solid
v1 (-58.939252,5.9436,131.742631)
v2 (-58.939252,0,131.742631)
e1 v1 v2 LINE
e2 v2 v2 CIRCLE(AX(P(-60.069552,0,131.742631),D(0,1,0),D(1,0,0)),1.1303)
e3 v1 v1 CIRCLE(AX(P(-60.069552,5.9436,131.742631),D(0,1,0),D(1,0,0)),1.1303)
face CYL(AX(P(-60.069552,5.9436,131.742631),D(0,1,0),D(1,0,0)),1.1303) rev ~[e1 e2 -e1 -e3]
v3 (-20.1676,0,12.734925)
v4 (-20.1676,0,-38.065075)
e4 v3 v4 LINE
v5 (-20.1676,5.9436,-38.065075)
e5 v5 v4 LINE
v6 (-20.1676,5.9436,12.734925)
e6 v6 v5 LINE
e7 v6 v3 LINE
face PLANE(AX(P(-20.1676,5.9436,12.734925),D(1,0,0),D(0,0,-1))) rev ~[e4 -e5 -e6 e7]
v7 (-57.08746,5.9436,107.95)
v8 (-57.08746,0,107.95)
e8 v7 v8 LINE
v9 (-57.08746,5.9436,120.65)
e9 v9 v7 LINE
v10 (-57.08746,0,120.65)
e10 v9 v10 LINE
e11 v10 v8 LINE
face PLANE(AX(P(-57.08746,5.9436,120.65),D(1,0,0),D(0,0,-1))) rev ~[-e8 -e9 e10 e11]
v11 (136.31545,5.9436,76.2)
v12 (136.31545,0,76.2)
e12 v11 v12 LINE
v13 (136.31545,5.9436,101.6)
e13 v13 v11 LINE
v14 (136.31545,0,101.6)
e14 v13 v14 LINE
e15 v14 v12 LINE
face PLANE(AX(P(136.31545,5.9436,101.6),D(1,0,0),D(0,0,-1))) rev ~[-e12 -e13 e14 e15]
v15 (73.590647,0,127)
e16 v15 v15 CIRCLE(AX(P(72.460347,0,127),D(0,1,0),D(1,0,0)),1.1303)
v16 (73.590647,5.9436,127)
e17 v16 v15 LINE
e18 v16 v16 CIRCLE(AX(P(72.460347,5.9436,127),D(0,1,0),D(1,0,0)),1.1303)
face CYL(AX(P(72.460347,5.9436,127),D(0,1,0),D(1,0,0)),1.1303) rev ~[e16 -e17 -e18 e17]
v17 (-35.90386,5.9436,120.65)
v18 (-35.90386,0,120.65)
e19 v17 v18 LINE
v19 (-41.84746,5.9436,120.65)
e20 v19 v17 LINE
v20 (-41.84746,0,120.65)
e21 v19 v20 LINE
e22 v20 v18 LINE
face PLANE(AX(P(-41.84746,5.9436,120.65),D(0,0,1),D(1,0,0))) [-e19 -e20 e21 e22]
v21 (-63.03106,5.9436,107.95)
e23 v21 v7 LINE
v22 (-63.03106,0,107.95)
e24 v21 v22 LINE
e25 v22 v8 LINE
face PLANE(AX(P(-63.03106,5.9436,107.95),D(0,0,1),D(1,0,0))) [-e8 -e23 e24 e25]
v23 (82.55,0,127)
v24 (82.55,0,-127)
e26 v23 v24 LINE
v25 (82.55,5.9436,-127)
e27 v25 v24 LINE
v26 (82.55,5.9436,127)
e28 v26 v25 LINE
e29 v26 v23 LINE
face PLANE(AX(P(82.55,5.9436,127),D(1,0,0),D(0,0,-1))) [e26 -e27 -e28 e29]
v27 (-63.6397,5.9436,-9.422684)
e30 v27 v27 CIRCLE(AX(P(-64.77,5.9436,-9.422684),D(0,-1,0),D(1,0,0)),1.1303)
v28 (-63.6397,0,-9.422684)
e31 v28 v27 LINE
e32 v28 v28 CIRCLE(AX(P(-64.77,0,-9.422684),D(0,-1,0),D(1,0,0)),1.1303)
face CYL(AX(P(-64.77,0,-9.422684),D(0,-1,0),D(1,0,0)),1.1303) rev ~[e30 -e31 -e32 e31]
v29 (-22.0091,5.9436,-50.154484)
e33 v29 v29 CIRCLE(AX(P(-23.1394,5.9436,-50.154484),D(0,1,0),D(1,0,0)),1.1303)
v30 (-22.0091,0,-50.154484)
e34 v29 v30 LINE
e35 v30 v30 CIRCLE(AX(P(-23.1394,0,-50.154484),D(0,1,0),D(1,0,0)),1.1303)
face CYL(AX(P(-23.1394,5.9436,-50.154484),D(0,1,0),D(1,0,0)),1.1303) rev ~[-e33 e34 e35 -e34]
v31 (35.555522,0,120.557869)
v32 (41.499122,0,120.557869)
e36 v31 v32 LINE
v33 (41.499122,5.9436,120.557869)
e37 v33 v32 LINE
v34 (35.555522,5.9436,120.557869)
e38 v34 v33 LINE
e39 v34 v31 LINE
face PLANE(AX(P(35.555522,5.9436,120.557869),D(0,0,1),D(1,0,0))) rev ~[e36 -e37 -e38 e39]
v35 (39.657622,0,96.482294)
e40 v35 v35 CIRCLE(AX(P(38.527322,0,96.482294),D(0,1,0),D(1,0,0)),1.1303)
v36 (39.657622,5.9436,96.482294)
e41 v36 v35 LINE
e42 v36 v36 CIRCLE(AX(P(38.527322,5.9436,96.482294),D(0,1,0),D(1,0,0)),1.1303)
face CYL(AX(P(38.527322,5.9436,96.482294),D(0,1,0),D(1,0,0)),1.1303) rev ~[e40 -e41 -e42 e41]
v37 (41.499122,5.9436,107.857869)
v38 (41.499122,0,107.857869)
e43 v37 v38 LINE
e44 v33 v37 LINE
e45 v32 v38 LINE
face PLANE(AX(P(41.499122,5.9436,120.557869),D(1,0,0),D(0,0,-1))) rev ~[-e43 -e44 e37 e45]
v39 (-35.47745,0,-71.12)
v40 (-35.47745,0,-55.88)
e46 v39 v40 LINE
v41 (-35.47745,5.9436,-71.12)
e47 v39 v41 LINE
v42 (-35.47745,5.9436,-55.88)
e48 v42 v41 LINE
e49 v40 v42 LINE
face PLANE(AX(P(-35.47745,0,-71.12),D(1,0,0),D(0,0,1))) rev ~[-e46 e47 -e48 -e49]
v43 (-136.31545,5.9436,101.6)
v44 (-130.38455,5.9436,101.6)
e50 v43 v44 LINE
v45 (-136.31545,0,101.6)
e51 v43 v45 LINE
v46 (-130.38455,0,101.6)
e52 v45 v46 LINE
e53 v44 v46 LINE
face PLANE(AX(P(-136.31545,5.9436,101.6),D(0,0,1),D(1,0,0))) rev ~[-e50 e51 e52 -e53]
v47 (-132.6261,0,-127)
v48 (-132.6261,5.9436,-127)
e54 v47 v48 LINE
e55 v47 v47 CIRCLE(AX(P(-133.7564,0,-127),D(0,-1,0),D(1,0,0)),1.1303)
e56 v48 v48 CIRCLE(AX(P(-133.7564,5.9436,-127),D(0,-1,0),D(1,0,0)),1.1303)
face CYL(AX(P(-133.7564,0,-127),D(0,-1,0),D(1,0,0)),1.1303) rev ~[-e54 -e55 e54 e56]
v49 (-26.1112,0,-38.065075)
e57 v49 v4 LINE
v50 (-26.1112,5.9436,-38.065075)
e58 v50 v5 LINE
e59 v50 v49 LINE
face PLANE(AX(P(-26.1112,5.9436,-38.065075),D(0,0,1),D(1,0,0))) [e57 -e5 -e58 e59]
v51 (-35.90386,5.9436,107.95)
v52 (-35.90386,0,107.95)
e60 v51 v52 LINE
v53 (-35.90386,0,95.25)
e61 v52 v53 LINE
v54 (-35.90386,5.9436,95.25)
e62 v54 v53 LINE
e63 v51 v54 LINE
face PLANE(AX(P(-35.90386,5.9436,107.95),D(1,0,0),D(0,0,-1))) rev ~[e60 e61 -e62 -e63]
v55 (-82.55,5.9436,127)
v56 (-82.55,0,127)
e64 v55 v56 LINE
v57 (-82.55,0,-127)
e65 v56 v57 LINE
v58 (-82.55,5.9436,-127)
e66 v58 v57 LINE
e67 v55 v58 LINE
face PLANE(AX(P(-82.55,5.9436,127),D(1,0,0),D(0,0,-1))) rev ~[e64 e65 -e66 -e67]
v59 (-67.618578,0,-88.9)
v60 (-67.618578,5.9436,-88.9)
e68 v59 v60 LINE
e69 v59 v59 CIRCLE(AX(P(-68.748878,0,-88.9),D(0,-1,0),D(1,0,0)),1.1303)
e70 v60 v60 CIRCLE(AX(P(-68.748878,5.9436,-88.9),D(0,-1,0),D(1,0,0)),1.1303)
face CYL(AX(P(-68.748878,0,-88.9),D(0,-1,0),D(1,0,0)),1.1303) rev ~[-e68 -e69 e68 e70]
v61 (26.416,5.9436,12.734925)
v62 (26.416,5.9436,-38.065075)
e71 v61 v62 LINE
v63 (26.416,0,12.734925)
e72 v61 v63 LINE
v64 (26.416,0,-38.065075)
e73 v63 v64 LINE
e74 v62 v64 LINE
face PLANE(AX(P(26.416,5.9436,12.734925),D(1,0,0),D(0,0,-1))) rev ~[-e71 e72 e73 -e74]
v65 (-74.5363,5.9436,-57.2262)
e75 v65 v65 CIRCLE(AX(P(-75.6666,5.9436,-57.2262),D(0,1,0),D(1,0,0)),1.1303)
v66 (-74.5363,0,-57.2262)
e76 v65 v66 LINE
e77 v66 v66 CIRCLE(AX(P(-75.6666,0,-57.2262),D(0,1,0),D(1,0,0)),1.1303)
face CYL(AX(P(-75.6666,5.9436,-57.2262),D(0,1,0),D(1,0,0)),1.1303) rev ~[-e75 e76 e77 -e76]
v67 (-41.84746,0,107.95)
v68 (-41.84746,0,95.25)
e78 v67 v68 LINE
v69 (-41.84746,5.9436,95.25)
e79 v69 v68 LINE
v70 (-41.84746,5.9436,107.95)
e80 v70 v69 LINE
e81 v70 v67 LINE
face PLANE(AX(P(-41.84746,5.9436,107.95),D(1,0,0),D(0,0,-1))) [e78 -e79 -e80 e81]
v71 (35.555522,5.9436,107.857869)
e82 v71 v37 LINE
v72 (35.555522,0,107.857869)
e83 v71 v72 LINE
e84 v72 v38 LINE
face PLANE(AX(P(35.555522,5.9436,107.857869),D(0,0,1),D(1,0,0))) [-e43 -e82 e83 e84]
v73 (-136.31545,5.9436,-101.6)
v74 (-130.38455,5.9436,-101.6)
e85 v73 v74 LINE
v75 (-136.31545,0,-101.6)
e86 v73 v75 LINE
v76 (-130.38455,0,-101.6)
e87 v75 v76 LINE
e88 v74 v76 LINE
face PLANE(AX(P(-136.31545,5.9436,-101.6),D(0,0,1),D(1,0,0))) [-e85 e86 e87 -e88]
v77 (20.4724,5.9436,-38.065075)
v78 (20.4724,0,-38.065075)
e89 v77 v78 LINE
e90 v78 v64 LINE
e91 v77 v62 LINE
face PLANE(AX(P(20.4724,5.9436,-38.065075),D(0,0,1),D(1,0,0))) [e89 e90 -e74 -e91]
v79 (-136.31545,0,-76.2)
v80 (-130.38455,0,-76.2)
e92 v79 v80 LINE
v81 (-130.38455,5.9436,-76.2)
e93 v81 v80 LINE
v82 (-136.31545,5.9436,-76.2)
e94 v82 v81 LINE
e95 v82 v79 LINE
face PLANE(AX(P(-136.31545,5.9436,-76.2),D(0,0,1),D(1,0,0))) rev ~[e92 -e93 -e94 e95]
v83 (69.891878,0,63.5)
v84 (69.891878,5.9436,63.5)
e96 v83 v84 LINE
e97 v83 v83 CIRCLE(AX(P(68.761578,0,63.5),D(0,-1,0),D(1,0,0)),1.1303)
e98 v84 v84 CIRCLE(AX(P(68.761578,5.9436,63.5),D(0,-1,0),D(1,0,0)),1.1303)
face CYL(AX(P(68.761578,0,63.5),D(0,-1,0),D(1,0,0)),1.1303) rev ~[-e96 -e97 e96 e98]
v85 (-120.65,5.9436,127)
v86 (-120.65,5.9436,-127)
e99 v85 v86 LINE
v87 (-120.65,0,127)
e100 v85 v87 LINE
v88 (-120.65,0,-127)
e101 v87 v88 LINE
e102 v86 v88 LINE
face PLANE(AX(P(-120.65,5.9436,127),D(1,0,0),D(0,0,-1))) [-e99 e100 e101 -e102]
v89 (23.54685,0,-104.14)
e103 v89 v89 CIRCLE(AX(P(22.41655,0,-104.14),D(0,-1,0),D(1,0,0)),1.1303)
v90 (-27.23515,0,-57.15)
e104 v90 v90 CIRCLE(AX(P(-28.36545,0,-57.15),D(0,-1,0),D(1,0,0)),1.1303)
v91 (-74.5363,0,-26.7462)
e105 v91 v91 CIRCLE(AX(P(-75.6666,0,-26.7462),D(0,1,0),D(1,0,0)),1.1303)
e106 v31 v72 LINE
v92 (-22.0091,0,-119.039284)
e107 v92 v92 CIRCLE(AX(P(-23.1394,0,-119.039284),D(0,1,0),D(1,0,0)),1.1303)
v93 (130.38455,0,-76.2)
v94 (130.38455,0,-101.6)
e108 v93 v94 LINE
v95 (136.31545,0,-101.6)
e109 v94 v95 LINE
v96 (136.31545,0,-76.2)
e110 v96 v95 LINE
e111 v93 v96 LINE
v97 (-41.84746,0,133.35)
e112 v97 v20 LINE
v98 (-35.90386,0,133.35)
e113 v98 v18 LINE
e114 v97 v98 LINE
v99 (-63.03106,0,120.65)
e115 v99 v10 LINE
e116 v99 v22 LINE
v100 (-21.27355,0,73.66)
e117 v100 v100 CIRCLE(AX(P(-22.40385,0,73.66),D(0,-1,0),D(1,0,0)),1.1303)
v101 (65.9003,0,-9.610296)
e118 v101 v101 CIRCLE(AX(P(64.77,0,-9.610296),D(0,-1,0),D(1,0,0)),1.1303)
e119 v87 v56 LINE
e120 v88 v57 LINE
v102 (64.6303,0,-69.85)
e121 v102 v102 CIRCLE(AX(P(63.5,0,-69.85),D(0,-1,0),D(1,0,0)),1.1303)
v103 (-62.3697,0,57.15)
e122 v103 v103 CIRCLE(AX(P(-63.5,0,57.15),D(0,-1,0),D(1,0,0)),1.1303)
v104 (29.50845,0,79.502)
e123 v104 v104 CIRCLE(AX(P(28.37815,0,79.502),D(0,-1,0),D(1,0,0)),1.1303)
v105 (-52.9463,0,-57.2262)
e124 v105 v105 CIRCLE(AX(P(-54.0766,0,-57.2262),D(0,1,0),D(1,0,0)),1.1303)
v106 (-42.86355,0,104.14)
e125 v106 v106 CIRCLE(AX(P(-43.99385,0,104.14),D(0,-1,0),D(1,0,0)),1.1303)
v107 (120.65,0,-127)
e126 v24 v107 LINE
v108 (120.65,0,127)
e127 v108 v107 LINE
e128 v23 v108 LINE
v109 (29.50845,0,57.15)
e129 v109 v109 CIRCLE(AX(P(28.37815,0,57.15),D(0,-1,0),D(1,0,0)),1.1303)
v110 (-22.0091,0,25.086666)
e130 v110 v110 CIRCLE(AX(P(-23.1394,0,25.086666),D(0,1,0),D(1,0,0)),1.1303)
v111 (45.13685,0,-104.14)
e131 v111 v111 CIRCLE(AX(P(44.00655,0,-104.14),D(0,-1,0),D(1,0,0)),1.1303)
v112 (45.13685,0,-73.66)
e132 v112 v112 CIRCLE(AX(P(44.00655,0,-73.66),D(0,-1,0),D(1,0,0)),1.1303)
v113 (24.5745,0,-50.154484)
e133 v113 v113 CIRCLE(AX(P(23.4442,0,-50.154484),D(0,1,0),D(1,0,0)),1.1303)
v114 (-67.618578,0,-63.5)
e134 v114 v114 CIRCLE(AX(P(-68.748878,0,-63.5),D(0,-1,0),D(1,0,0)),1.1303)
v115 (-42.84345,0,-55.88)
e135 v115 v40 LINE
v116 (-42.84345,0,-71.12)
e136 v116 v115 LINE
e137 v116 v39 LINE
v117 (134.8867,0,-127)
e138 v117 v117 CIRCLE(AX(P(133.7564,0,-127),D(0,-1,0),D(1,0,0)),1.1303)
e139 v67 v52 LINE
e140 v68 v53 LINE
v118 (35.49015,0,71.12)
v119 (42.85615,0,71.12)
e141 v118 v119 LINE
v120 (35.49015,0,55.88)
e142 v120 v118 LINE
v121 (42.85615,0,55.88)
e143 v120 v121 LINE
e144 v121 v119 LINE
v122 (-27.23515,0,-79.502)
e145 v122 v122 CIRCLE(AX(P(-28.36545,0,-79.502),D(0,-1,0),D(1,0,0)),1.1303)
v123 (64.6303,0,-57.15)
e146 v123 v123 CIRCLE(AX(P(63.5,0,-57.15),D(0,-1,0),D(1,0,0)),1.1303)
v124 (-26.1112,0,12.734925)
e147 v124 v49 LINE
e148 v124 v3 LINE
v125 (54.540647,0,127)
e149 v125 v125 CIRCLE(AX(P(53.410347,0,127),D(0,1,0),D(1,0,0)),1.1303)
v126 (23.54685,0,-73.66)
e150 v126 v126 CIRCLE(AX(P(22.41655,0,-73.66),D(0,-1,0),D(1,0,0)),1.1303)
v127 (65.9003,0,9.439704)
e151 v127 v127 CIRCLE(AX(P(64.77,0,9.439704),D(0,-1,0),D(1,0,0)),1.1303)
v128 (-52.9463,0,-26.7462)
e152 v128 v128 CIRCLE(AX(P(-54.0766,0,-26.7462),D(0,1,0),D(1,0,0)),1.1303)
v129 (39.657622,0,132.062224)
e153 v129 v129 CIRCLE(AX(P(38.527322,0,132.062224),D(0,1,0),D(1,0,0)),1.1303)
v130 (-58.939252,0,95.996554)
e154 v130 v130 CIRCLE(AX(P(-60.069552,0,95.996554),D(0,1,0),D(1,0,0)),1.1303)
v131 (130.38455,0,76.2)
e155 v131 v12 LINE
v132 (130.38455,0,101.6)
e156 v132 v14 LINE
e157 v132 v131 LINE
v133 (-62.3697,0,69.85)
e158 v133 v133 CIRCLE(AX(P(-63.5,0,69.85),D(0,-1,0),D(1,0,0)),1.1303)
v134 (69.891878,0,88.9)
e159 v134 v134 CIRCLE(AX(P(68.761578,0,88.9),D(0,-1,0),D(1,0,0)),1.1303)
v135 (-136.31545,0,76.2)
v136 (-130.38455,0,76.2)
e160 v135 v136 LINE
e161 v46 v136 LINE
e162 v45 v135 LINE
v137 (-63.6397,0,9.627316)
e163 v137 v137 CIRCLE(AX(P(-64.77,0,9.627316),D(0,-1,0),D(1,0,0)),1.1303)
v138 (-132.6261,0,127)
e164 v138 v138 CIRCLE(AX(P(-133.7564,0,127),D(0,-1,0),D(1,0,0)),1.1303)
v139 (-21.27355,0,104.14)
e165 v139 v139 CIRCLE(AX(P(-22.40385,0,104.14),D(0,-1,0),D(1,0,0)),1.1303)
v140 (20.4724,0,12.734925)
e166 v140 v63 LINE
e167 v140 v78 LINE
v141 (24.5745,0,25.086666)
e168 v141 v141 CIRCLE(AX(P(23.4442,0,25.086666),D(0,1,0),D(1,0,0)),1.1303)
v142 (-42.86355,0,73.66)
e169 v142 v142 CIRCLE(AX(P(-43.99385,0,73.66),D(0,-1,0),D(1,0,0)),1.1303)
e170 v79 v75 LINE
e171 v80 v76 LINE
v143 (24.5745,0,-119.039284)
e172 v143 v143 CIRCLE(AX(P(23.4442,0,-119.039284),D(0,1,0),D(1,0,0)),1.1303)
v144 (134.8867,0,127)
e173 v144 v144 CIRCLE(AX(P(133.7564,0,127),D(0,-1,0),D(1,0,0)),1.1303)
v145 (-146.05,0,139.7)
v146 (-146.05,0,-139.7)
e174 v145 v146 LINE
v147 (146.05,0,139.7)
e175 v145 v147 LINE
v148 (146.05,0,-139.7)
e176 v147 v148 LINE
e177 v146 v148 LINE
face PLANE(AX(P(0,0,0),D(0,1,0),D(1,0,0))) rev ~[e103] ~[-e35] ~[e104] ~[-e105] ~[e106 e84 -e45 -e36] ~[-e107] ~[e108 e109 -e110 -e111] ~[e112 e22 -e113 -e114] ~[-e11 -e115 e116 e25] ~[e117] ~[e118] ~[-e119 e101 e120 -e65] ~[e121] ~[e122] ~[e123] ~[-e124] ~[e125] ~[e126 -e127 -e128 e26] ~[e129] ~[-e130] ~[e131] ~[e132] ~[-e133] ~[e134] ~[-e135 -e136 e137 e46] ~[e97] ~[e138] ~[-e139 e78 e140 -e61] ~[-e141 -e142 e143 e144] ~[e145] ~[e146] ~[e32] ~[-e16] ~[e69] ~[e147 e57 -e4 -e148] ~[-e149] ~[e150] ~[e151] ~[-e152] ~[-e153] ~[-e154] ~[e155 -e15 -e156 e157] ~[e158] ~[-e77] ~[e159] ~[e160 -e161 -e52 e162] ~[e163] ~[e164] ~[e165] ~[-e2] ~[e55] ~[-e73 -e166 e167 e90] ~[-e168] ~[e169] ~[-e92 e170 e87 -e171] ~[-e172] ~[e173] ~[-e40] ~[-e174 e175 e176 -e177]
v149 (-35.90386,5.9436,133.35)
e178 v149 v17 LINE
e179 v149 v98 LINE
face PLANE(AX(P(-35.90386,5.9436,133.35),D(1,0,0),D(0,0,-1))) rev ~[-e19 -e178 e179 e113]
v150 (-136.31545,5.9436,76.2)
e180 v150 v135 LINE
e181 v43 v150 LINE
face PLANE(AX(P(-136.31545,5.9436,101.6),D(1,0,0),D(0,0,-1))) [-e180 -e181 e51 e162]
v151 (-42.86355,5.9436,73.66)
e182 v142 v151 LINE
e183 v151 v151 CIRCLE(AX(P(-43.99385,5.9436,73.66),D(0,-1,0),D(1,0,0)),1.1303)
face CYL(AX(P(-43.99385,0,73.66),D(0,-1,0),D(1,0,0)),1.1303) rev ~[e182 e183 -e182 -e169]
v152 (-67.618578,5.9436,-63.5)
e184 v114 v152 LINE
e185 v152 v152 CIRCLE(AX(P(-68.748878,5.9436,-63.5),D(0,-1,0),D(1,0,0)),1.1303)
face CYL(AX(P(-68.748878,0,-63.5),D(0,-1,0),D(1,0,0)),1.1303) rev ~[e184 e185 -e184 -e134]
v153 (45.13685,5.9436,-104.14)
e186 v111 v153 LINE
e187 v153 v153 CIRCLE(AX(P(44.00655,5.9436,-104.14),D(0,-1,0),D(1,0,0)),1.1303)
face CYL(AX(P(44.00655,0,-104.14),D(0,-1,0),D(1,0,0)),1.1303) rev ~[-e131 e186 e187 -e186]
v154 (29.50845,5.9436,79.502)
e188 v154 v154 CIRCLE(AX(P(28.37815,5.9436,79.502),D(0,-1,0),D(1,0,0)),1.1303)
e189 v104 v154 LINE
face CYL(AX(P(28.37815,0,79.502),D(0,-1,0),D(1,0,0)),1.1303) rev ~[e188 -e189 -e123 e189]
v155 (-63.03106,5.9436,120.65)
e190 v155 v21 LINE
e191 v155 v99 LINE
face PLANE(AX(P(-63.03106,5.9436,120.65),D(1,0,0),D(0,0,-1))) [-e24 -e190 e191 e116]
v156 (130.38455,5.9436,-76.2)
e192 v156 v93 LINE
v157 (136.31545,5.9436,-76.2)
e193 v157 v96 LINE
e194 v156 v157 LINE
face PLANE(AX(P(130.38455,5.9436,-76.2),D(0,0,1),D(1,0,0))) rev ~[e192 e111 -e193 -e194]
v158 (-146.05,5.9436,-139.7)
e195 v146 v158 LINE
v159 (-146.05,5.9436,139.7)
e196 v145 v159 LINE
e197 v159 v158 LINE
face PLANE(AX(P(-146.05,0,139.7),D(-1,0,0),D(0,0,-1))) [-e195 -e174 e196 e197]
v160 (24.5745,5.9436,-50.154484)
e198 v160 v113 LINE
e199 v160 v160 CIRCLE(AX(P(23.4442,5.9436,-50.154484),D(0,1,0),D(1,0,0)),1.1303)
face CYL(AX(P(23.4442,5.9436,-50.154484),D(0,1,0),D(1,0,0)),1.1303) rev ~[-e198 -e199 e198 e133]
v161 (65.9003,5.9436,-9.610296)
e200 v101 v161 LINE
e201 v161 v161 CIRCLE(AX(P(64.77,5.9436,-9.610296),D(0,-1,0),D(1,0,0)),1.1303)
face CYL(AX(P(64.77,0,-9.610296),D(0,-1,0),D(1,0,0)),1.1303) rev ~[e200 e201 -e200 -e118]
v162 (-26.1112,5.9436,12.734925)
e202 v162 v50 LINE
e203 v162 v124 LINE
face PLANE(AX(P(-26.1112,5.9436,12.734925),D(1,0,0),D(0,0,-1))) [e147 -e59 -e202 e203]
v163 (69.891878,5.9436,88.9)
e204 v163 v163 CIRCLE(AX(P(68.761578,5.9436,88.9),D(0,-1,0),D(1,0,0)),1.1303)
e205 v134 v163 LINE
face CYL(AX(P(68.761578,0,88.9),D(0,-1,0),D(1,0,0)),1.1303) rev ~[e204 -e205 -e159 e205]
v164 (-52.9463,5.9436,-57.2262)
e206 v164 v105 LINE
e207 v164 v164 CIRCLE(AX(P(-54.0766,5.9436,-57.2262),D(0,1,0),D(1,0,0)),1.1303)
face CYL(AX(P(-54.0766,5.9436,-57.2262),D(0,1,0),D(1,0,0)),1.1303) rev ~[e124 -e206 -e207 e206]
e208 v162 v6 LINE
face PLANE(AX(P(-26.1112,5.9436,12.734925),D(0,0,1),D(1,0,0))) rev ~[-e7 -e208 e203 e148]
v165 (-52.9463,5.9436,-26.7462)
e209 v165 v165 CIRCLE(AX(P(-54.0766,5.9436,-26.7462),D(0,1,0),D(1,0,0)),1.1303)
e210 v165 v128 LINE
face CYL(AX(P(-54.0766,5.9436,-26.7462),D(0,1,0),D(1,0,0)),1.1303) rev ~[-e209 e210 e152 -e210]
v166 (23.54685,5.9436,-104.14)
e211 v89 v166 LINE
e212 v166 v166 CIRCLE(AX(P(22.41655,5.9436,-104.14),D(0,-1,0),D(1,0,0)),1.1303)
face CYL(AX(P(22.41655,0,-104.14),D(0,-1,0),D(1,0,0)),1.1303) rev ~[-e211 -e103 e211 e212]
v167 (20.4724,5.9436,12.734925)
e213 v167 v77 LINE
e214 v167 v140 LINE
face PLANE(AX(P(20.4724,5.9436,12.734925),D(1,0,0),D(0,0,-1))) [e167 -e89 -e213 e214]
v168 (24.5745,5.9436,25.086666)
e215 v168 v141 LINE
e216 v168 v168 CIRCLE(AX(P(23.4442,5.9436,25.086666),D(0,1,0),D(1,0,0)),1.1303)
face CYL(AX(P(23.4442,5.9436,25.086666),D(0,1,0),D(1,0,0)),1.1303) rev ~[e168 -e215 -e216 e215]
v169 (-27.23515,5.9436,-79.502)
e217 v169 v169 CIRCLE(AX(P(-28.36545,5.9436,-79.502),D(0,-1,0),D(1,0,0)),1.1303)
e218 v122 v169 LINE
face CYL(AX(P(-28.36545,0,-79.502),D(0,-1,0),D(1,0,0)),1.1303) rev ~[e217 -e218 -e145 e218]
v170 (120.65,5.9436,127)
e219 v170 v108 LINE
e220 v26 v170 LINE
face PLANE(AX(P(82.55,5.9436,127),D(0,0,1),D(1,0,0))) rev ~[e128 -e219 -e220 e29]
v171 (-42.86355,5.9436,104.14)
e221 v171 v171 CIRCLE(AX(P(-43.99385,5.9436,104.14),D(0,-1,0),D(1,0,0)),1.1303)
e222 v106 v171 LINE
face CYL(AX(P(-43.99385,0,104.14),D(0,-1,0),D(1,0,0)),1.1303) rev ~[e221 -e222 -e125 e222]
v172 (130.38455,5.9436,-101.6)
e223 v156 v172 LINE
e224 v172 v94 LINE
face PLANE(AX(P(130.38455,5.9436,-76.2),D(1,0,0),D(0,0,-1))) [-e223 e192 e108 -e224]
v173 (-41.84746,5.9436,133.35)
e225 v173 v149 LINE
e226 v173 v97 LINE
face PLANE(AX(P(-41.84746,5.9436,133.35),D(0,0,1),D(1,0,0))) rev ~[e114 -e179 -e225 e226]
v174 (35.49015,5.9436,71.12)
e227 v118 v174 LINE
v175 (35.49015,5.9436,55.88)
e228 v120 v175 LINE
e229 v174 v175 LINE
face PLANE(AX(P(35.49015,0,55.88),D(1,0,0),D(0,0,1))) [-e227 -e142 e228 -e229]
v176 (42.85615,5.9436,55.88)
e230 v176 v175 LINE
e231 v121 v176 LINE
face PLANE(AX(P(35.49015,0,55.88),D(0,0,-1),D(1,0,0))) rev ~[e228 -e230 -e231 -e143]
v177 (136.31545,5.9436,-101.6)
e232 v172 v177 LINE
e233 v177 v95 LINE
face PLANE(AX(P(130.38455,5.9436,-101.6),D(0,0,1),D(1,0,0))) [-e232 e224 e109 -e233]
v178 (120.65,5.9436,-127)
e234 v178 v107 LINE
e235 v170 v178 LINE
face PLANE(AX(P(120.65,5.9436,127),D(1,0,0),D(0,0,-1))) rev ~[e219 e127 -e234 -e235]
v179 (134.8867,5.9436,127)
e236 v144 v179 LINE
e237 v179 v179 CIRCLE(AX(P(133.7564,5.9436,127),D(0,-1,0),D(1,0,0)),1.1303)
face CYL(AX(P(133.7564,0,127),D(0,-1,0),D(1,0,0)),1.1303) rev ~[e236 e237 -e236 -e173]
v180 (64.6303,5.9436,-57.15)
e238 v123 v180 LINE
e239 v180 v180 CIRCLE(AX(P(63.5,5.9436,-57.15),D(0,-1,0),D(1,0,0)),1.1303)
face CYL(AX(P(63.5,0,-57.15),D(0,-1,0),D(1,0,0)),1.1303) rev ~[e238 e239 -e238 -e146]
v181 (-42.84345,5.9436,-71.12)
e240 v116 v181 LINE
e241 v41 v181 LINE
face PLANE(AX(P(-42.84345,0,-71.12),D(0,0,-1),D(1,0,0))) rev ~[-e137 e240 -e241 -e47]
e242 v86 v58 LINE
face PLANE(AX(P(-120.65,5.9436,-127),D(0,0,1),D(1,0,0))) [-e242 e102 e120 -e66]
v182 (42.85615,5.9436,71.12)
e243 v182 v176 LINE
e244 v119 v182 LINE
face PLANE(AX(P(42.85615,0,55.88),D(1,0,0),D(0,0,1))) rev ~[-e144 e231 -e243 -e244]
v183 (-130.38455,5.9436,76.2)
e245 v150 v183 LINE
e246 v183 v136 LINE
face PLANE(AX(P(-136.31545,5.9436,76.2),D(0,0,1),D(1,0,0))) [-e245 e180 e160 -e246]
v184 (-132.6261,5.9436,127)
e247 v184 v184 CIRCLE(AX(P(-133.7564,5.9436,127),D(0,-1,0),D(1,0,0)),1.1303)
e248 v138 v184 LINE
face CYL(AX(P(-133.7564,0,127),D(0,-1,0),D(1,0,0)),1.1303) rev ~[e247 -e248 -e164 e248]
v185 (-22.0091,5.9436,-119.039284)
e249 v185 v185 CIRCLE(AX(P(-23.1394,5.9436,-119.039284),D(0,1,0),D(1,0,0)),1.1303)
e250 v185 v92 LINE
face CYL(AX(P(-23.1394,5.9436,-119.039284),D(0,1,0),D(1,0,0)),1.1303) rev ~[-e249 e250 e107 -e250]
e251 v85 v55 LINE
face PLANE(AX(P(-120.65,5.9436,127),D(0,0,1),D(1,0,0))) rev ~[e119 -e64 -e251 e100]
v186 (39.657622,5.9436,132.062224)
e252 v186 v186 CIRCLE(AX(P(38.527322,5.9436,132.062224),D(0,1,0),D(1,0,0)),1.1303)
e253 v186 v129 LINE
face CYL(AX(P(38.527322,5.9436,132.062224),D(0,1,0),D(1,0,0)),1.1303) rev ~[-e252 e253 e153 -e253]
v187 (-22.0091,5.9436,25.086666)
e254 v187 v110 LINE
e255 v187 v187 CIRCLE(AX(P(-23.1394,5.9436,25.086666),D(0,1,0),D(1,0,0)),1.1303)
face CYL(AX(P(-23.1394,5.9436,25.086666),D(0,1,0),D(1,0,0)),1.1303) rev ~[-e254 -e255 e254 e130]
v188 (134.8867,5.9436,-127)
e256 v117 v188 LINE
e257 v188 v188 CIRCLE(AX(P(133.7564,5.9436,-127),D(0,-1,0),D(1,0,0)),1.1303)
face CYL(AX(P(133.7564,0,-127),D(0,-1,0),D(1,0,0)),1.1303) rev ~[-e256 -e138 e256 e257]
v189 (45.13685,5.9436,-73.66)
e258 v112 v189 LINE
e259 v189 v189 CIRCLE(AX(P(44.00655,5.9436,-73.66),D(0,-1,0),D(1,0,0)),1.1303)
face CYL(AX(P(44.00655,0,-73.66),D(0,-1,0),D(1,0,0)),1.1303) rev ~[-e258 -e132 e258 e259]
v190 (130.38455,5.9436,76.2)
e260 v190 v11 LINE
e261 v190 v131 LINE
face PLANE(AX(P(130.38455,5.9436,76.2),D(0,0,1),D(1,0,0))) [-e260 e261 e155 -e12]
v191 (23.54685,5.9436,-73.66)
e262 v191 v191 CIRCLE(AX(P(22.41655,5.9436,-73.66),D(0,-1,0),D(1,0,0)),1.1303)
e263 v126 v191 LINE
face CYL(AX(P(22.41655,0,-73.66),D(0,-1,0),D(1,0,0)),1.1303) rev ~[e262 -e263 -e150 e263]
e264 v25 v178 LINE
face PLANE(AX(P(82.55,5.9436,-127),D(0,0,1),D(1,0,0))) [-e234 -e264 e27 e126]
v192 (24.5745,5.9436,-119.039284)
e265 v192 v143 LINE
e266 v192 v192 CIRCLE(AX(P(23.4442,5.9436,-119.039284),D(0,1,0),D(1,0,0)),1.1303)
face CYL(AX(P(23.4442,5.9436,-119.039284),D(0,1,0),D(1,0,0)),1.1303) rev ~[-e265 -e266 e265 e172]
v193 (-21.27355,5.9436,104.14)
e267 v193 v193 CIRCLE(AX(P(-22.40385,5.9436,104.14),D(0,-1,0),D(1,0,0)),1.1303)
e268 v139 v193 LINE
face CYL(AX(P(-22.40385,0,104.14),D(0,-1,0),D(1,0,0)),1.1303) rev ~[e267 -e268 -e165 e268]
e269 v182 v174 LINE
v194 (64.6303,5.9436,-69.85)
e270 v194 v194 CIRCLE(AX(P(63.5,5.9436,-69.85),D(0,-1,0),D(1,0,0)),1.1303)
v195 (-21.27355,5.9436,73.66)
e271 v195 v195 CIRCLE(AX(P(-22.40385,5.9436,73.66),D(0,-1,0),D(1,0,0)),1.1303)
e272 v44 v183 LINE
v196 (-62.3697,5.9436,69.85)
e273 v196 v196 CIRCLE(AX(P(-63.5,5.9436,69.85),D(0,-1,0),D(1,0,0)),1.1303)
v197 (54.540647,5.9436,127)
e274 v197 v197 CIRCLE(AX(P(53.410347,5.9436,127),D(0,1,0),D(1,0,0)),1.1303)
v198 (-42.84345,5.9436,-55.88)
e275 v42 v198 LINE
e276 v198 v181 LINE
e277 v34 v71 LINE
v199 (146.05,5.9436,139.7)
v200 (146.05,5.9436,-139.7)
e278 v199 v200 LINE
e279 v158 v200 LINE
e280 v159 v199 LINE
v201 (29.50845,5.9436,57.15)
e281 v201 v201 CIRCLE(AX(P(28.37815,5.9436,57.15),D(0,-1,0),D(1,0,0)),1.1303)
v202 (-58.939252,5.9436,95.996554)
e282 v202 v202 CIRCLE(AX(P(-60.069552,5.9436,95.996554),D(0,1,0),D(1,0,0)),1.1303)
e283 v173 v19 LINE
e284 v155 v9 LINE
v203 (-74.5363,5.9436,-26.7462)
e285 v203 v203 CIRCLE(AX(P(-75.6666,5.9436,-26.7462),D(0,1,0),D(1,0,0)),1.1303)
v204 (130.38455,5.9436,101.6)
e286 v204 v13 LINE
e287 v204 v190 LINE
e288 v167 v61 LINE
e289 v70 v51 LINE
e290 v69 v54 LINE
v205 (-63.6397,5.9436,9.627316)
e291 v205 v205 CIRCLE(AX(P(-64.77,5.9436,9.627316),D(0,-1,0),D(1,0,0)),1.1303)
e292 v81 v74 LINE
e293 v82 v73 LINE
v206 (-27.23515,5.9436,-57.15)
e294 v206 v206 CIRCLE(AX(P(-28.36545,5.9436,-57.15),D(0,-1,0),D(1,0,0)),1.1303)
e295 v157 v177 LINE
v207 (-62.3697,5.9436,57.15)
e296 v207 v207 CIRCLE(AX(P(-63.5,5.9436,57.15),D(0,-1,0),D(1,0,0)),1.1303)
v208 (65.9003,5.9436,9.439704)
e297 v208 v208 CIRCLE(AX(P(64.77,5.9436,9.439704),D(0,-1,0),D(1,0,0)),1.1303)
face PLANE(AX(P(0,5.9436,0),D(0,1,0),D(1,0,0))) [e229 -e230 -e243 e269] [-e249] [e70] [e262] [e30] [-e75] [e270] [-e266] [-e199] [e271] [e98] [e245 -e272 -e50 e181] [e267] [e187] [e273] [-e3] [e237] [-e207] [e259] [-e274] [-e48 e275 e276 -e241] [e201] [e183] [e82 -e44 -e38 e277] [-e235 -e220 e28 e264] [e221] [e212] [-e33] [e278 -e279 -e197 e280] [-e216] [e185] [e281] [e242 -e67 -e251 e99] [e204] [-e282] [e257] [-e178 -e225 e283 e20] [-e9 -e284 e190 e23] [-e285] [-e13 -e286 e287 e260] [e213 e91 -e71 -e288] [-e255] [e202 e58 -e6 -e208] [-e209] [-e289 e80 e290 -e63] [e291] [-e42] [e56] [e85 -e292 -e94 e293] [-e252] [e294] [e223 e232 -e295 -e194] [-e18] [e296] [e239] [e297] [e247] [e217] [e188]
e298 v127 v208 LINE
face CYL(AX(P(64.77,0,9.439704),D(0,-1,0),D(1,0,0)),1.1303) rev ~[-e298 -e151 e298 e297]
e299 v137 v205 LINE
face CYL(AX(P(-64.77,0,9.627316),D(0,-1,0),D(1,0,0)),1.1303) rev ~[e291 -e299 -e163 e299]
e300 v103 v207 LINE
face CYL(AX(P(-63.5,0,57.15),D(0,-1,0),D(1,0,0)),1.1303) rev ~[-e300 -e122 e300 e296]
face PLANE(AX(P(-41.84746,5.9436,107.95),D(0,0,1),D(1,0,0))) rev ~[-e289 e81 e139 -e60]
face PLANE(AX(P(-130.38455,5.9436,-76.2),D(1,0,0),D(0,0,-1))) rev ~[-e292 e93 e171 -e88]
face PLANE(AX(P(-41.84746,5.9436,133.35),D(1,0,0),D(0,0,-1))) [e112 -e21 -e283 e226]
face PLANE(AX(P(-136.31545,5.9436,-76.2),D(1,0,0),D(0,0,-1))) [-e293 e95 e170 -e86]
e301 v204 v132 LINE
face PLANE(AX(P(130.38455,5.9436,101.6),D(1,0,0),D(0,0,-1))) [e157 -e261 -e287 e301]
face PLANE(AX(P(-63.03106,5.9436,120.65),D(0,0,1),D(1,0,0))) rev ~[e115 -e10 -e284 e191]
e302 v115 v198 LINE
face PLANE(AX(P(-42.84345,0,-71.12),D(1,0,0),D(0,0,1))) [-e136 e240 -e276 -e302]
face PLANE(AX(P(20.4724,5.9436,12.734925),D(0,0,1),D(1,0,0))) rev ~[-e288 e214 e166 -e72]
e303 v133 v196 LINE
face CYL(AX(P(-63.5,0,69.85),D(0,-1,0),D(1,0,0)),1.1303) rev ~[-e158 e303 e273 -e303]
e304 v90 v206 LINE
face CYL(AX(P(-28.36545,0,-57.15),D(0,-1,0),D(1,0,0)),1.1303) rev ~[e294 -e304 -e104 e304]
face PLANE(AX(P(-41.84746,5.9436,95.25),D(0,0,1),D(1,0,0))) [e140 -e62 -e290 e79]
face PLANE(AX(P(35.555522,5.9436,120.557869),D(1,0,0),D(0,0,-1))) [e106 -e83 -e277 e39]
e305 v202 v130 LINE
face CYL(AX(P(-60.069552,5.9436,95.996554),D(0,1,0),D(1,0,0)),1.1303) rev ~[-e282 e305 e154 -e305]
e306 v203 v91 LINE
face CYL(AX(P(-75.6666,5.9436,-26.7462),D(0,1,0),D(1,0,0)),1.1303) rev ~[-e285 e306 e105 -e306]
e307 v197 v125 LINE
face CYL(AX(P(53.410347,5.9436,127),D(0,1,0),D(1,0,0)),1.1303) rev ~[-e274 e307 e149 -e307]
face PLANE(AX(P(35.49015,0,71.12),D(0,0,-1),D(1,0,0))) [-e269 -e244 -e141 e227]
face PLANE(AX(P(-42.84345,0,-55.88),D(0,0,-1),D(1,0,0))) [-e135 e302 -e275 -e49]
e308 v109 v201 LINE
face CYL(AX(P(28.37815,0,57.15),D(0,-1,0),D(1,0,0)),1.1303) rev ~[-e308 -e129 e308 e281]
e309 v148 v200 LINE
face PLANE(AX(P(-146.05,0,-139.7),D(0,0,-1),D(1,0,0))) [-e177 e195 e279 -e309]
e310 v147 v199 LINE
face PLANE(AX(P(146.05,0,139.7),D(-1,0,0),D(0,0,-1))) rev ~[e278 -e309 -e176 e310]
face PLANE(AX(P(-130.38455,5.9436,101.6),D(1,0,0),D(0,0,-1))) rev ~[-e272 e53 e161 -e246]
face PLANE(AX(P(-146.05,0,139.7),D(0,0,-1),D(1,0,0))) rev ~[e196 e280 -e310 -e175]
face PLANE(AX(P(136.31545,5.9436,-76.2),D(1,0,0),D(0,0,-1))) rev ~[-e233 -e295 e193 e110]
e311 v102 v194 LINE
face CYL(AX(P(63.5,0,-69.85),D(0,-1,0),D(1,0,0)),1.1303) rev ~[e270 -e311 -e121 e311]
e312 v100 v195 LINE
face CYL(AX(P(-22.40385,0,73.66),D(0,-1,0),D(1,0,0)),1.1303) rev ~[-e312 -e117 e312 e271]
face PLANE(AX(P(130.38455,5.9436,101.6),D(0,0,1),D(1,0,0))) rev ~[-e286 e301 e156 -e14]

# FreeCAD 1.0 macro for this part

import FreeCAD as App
import Part
import Sketcher
from FreeCAD import Vector
Q = App.Units.Quantity


def add_polygon(sketch, points):
    """Adds a closed chain of lines whose ends are joined by coincident constraints."""
    first, n = sketch.GeometryCount, len(points)
    for a, b in zip(points, points[1:] + points[:1]):
        sketch.addGeometry(Part.LineSegment(App.Vector(*a, 0), App.Vector(*b, 0)), False)
    for i in range(n):
        sketch.addConstraint(Sketcher.Constraint("Coincident", first + i, 2, first + (i + 1) % n, 1))

doc = App.newDocument("Part")
body = doc.addObject("PartDesign::Body", "Body")

# Sketch on XZ plane
sketch1 = body.newObject("Sketcher::SketchObject", "Sketch")
sketch1.AttachmentSupport = (doc.getObject("XZ_Plane"), [""])
sketch1.MapMode = "FlatFace"
add_polygon(sketch1, [(-146, -140), (-146, 140), (146, 140), (146, -140)])  # lines 0-3
sketch1.addConstraint([
    Sketcher.Constraint("Vertical", 0),
    Sketcher.Constraint("Horizontal", 1),
    Sketcher.Constraint("Vertical", 2),
    Sketcher.Constraint("Horizontal", 3),
    Sketcher.Constraint("Symmetric", 0, 2, 2, 2, -1, 1),
    Sketcher.Constraint("DistanceY", 0, 1, 0, 2, Q("11 in")),
    Sketcher.Constraint("DistanceX", 1, 1, 1, 2, Q("11.5 in")),
])
pad1 = body.newObject("PartDesign::Pad", "Pad")
pad1.Profile = sketch1
pad1.Length = Q("0.234 in")
pad1.Reversed = True

# Sketch on XZ plane
sketch2 = body.newObject("Sketcher::SketchObject", "Sketch001")
sketch2.AttachmentSupport = (doc.getObject("XZ_Plane"), [""])
sketch2.MapMode = "FlatFace"
sketch2.AttachmentOffset = App.Placement(Vector(0, 0, -0.234 * 25.4), App.Rotation())
add_polygon(sketch2, [(-121, -127), (-121, 127), (-83, 127), (-83, -127)])  # lines 0-3
add_polygon(sketch2, [(83, -127), (83, 127), (121, 127), (121, -127)])  # lines 4-7
add_polygon(sketch2, [(130, -102), (130, -76), (136, -76), (136, -102)])  # lines 8-11
add_polygon(sketch2, [(-136, -102), (-136, -76), (-130, -76), (-130, -102)])  # lines 12-15
add_polygon(sketch2, [(130, 76), (130, 102), (136, 102), (136, 76)])  # lines 16-19
add_polygon(sketch2, [(-136, 76), (-136, 102), (-130, 102), (-130, 76)])  # lines 20-23
sketch2.addConstraint([
    Sketcher.Constraint("Vertical", 0),
    Sketcher.Constraint("Horizontal", 1),
    Sketcher.Constraint("Vertical", 2),
    Sketcher.Constraint("Horizontal", 3),
    Sketcher.Constraint("Vertical", 4),
    Sketcher.Constraint("Horizontal", 5),
    Sketcher.Constraint("Vertical", 6),
    Sketcher.Constraint("Horizontal", 7),
    Sketcher.Constraint("Vertical", 8),
    Sketcher.Constraint("Horizontal", 9),
    Sketcher.Constraint("Vertical", 10),
    Sketcher.Constraint("Horizontal", 11),
    Sketcher.Constraint("Vertical", 12),
    Sketcher.Constraint("Horizontal", 13),
    Sketcher.Constraint("Vertical", 14),
    Sketcher.Constraint("Horizontal", 15),
    Sketcher.Constraint("Vertical", 16),
    Sketcher.Constraint("Horizontal", 17),
    Sketcher.Constraint("Vertical", 18),
    Sketcher.Constraint("Horizontal", 19),
    Sketcher.Constraint("Vertical", 20),
    Sketcher.Constraint("Horizontal", 21),
    Sketcher.Constraint("Vertical", 22),
    Sketcher.Constraint("Horizontal", 23),
    Sketcher.Constraint("Symmetric", 2, 2, 4, 2, -1, 1),
    Sketcher.Constraint("Symmetric", 0, 2, 6, 2, -1, 1),
    Sketcher.Constraint("Symmetric", 14, 2, 16, 2, -1, 1),
    Sketcher.Constraint("Symmetric", 12, 2, 18, 2, -1, 1),
    Sketcher.Constraint("Symmetric", 10, 2, 20, 2, -1, 1),
    Sketcher.Constraint("Symmetric", 8, 2, 22, 2, -1, 1),
    Sketcher.Constraint("Symmetric", 9, 2, 12, 2, -2),
    Sketcher.Constraint("Symmetric", 11, 2, 14, 2, -2),
    Sketcher.Constraint("Horizontal", 1, 2, 4, 2),
    Sketcher.Constraint("DistanceY", 0, 1, 0, 2, Q("10 in")),
    Sketcher.Constraint("DistanceY", 8, 1, 8, 2, Q("1 in")),
    Sketcher.Constraint("DistanceX", 1, 1, 1, 2, Q("1.5 in")),
    Sketcher.Constraint("DistanceY", 8, 2, -1, 1, Q("3 in")),
    Sketcher.Constraint("DistanceX", 0, 2, 4, 2, Q("8 in")),
    Sketcher.Constraint("DistanceX", 9, 1, 9, 2, Q("0.2335 in")),
    Sketcher.Constraint("DistanceX", -1, 1, 8, 2, 130.38455),
])
pocket1 = body.newObject("PartDesign::Pocket", "Pocket")
pocket1.Profile = sketch2
pocket1.Type = "ThroughAll"
pocket1.Reversed = True

# Sketch on XZ plane
sketch3 = body.newObject("Sketcher::SketchObject", "Sketch002")
sketch3.AttachmentSupport = (doc.getObject("XZ_Plane"), [""])
sketch3.MapMode = "FlatFace"
sketch3.addGeometry(Part.Circle(Vector(-44, 104.1, 0), Vector(0, 0, 1), 1.1), False)  # 0
sketch3.addGeometry(Part.Circle(Vector(-22.4, 104.1, 0), Vector(0, 0, 1), 1.1), False)  # 1
sketch3.addGeometry(Part.Circle(Vector(-44, 73.7, 0), Vector(0, 0, 1), 1.1), False)  # 2
sketch3.addGeometry(Part.Circle(Vector(-22.4, 73.7, 0), Vector(0, 0, 1), 1.1), False)  # 3
sketch3.addGeometry(Part.Circle(Vector(28.4, 79.5, 0), Vector(0, 0, 1), 1.1), False)  # 4
sketch3.addGeometry(Part.Circle(Vector(28.4, 57.1, 0), Vector(0, 0, 1), 1.1), False)  # 5
sketch3.addGeometry(Part.Circle(Vector(68.8, 88.9, 0), Vector(0, 0, 1), 1.1), False)  # 6
sketch3.addGeometry(Part.Circle(Vector(68.8, 63.5, 0), Vector(0, 0, 1), 1.1), False)  # 7
sketch3.addGeometry(Part.Circle(Vector(-63.5, 69.8, 0), Vector(0, 0, 1), 1.1), False)  # 8
sketch3.addGeometry(Part.Circle(Vector(44, -73.7, 0), Vector(0, 0, 1), 1.1), False)  # 9
sketch3.addGeometry(Part.Circle(Vector(44, -104.1, 0), Vector(0, 0, 1), 1.1), False)  # 10
sketch3.addGeometry(Part.Circle(Vector(22.4, -104.1, 0), Vector(0, 0, 1), 1.1), False)  # 11
sketch3.addGeometry(Part.Circle(Vector(22.4, -73.7, 0), Vector(0, 0, 1), 1.1), False)  # 12
sketch3.addGeometry(Part.Circle(Vector(-28.4, -79.5, 0), Vector(0, 0, 1), 1.1), False)  # 13
sketch3.addGeometry(Part.Circle(Vector(-28.4, -57.1, 0), Vector(0, 0, 1), 1.1), False)  # 14
sketch3.addGeometry(Part.Circle(Vector(-68.7, -63.5, 0), Vector(0, 0, 1), 1.1), False)  # 15
sketch3.addGeometry(Part.Circle(Vector(-68.7, -88.9, 0), Vector(0, 0, 1), 1.1), False)  # 16
sketch3.addGeometry(Part.Circle(Vector(-63.5, 57.1, 0), Vector(0, 0, 1), 1.1), False)  # 17
sketch3.addGeometry(Part.Circle(Vector(63.5, -69.8, 0), Vector(0, 0, 1), 1.1), False)  # 18
sketch3.addGeometry(Part.Circle(Vector(63.5, -57.1, 0), Vector(0, 0, 1), 1.1), False)  # 19
sketch3.addGeometry(Part.Circle(Vector(-64.8, 9.6, 0), Vector(0, 0, 1), 1.1), False)  # 20
sketch3.addGeometry(Part.Circle(Vector(-64.8, -9.4, 0), Vector(0, 0, 1), 1.1), False)  # 21
sketch3.addGeometry(Part.Circle(Vector(64.8, -9.6, 0), Vector(0, 0, 1), 1.1), False)  # 22
sketch3.addGeometry(Part.Circle(Vector(64.8, 9.4, 0), Vector(0, 0, 1), 1.1), False)  # 23
sketch3.addGeometry(Part.Circle(Vector(-133.8, -127, 0), Vector(0, 0, 1), 1.1), False)  # 24
sketch3.addGeometry(Part.Circle(Vector(-133.8, 127, 0), Vector(0, 0, 1), 1.1), False)  # 25
sketch3.addGeometry(Part.Circle(Vector(133.8, -127, 0), Vector(0, 0, 1), 1.1), False)  # 26
sketch3.addGeometry(Part.Circle(Vector(133.8, 127, 0), Vector(0, 0, 1), 1.1), False)  # 27
add_polygon(sketch3, [(35.5, 71.1), (35.5, 55.9), (42.9, 55.9), (42.9, 71.1)])  # lines 28-31
add_polygon(sketch3, [(-42.8, -55.9), (-42.8, -71.1), (-35.5, -71.1), (-35.5, -55.9)])  # lines 32-35
sketch3.addConstraint([
    Sketcher.Constraint("Vertical", 28),
    Sketcher.Constraint("Horizontal", 29),
    Sketcher.Constraint("Vertical", 30),
    Sketcher.Constraint("Horizontal", 31),
    Sketcher.Constraint("Vertical", 32),
    Sketcher.Constraint("Horizontal", 33),
    Sketcher.Constraint("Vertical", 34),
    Sketcher.Constraint("Horizontal", 35),
    Sketcher.Constraint("Equal", 0, 1),
    Sketcher.Constraint("Equal", 1, 2),
    Sketcher.Constraint("Equal", 2, 3),
    Sketcher.Constraint("Equal", 3, 4),
    Sketcher.Constraint("Equal", 4, 5),
    Sketcher.Constraint("Equal", 5, 6),
    Sketcher.Constraint("Equal", 6, 7),
    Sketcher.Constraint("Equal", 7, 8),
    Sketcher.Constraint("Equal", 8, 9),
    Sketcher.Constraint("Equal", 9, 10),
    Sketcher.Constraint("Equal", 10, 11),
    Sketcher.Constraint("Equal", 11, 12),
    Sketcher.Constraint("Equal", 12, 13),
    Sketcher.Constraint("Equal", 13, 14),
    Sketcher.Constraint("Equal", 14, 15),
    Sketcher.Constraint("Equal", 15, 16),
    Sketcher.Constraint("Equal", 16, 17),
    Sketcher.Constraint("Equal", 17, 18),
    Sketcher.Constraint("Equal", 18, 19),
    Sketcher.Constraint("Equal", 19, 20),
    Sketcher.Constraint("Equal", 20, 21),
    Sketcher.Constraint("Equal", 21, 22),
    Sketcher.Constraint("Equal", 22, 23),
    Sketcher.Constraint("Equal", 23, 24),
    Sketcher.Constraint("Equal", 24, 25),
    Sketcher.Constraint("Equal", 25, 26),
    Sketcher.Constraint("Equal", 26, 27),
    Sketcher.Constraint("Symmetric", 8, 3, 18, 3, -1, 1),
    Sketcher.Constraint("Symmetric", 17, 3, 19, 3, -1, 1),
    Sketcher.Constraint("Symmetric", 25, 3, 26, 3, -1, 1),
    Sketcher.Constraint("Symmetric", 24, 3, 27, 3, -1, 1),
    Sketcher.Constraint("Symmetric", 24, 3, 26, 3, -2),
    Sketcher.Constraint("Horizontal", 0, 3, 1, 3),
    Sketcher.Constraint("Horizontal", 2, 3, 3, 3),
    Sketcher.Constraint("Horizontal", 10, 3, 11, 3),
    Sketcher.Constraint("Horizontal", 9, 3, 12, 3),
    Sketcher.Constraint("Horizontal", 5, 3, 17, 3),
    Sketcher.Constraint("Horizontal", 14, 3, 19, 3),
    Sketcher.Constraint("Vertical", 0, 3, 2, 3),
    Sketcher.Constraint("Vertical", 1, 3, 3, 3),
    Sketcher.Constraint("Vertical", 4, 3, 5, 3),
    Sketcher.Constraint("Vertical", 6, 3, 7, 3),
    Sketcher.Constraint("Vertical", 9, 3, 10, 3),
    Sketcher.Constraint("Vertical", 11, 3, 12, 3),
    Sketcher.Constraint("Vertical", 13, 3, 14, 3),
    Sketcher.Constraint("Vertical", 15, 3, 16, 3),
    Sketcher.Constraint("Vertical", 8, 3, 17, 3),
    Sketcher.Constraint("Vertical", 20, 3, 21, 3),
    Sketcher.Constraint("Vertical", 22, 3, 23, 3),
    Sketcher.Constraint("Equal", 31, 33),
    Sketcher.Constraint("Equal", 30, 32),
    Sketcher.Constraint("Diameter", 0, Q("0.089 in")),
    Sketcher.Constraint("DistanceY", 28, 2, 28, 1, Q("0.6 in")),
    Sketcher.Constraint("DistanceY", 24, 3, -1, 1, Q("5 in")),
    Sketcher.Constraint("DistanceY", 7, 3, 6, 3, Q("1 in")),
    Sketcher.Constraint("DistanceY", 10, 3, 3, 3, Q("7 in")),
    Sketcher.Constraint("DistanceY", 16, 3, 15, 3, Q("1 in")),
    Sketcher.Constraint("DistanceX", 29, 1, 29, 2, Q("0.29 in")),
    Sketcher.Constraint("DistanceY", -1, 1, 0, 3, Q("4.1 in")),
    Sketcher.Constraint("DistanceY", -1, 1, 2, 3, Q("2.9 in")),
    Sketcher.Constraint("DistanceY", -1, 1, 6, 3, Q("3.5 in")),
    Sketcher.Constraint("DistanceX", 8, 3, -1, 1, Q("2.5 in")),
    Sketcher.Constraint("DistanceY", 9, 3, -1, 1, Q("2.9 in")),
    Sketcher.Constraint("DistanceY", 15, 3, -1, 1, Q("2.5 in")),
    Sketcher.Constraint("DistanceY", -1, 1, 28, 2, Q("2.2 in")),
    Sketcher.Constraint("DistanceY", 32, 2, -1, 1, Q("2.8 in")),
    Sketcher.Constraint("DistanceY", 17, 3, 8, 3, Q("0.5 in")),
    Sketcher.Constraint("DistanceY", -1, 1, 4, 3, Q("3.13 in")),
    Sketcher.Constraint("DistanceY", -1, 1, 5, 3, Q("2.25 in")),
    Sketcher.Constraint("DistanceY", 13, 3, -1, 1, Q("3.13 in")),
    Sketcher.Constraint("DistanceX", 20, 3, -1, 1, Q("2.55 in")),
    Sketcher.Constraint("DistanceX", -1, 1, 22, 3, Q("2.55 in")),
    Sketcher.Constraint("DistanceX", 0, 3, 1, 3, Q("0.85 in")),
    Sketcher.Constraint("DistanceX", 11, 3, 10, 3, Q("0.85 in")),
    Sketcher.Constraint("DistanceY", 21, 3, 20, 3, Q("0.75 in")),
    Sketcher.Constraint("DistanceY", 22, 3, 23, 3, Q("0.75 in")),
    Sketcher.Constraint("DistanceX", 5, 3, 28, 2, Q("0.28 in")),
    Sketcher.Constraint("DistanceX", 32, 2, 13, 3, Q("0.57 in")),
    Sketcher.Constraint("DistanceX", 24, 3, -1, 1, Q("5.266 in")),
    Sketcher.Constraint("DistanceX", 13, 3, 5, 3, Q("2.234 in")),
    Sketcher.Constraint("DistanceX", 3, 3, 4, 3, 50.782),
    Sketcher.Constraint("DistanceX", 5, 3, 9, 3, 15.6284),
    Sketcher.Constraint("DistanceX", 0, 3, -1, 1, 43.99385),
    Sketcher.Constraint("DistanceX", -1, 1, 6, 3, 68.761578),
    Sketcher.Constraint("DistanceX", 15, 3, -1, 1, 68.748878),
    Sketcher.Constraint("DistanceY", -1, 1, 20, 3, 9.627316),
    Sketcher.Constraint("DistanceY", 22, 3, -1, 1, 9.610296),
])
pocket2 = body.newObject("PartDesign::Pocket", "Pocket001")
pocket2.Profile = sketch3
pocket2.Type = "ThroughAll"

# Sketch on XZ plane
sketch4 = body.newObject("Sketcher::SketchObject", "Sketch003")
sketch4.AttachmentSupport = (doc.getObject("XZ_Plane"), [""])
sketch4.MapMode = "FlatFace"
sketch4.AttachmentOffset = App.Placement(Vector(0, 0, -0.234 * 25.4), App.Rotation())
sketch4.addGeometry(Part.Circle(Vector(53.4, 127, 0), Vector(0, 0, 1), 1.1), False)  # 0
sketch4.addGeometry(Part.Circle(Vector(72.5, 127, 0), Vector(0, 0, 1), 1.1), False)  # 1
sketch4.addGeometry(Part.Circle(Vector(-60.1, 96, 0), Vector(0, 0, 1), 1.1), False)  # 2
sketch4.addGeometry(Part.Circle(Vector(-60.1, 131.7, 0), Vector(0, 0, 1), 1.1), False)  # 3
sketch4.addGeometry(Part.Circle(Vector(38.5, 96.5, 0), Vector(0, 0, 1), 1.1), False)  # 4
sketch4.addGeometry(Part.Circle(Vector(38.5, 132.1, 0), Vector(0, 0, 1), 1.1), False)  # 5
add_polygon(sketch4, [(-63, 108), (-63, 120.7), (-57.1, 120.7), (-57.1, 108)])  # lines 6-9
add_polygon(sketch4, [(-41.8, 95.2), (-41.8, 108), (-35.9, 108), (-35.9, 95.2)])  # lines 10-13
add_polygon(sketch4, [(-41.8, 120.7), (-41.8, 133.3), (-35.9, 133.3), (-35.9, 120.7)])  # lines 14-17
add_polygon(sketch4, [(35.6, 107.9), (35.6, 120.6), (41.5, 120.6), (41.5, 107.9)])  # lines 18-21
sketch4.addConstraint([
    Sketcher.Constraint("Vertical", 6),
    Sketcher.Constraint("Horizontal", 7),
    Sketcher.Constraint("Vertical", 8),
    Sketcher.Constraint("Horizontal", 9),
    Sketcher.Constraint("Vertical", 10),
    Sketcher.Constraint("Horizontal", 11),
    Sketcher.Constraint("Vertical", 12),
    Sketcher.Constraint("Horizontal", 13),
    Sketcher.Constraint("Vertical", 14),
    Sketcher.Constraint("Horizontal", 15),
    Sketcher.Constraint("Vertical", 16),
    Sketcher.Constraint("Horizontal", 17),
    Sketcher.Constraint("Vertical", 18),
    Sketcher.Constraint("Horizontal", 19),
    Sketcher.Constraint("Vertical", 20),
    Sketcher.Constraint("Horizontal", 21),
    Sketcher.Constraint("Equal", 0, 1),
    Sketcher.Constraint("Equal", 1, 2),
    Sketcher.Constraint("Equal", 2, 3),
    Sketcher.Constraint("Equal", 3, 4),
    Sketcher.Constraint("Equal", 4, 5),
    Sketcher.Constraint("Horizontal", 0, 3, 1, 3),
    Sketcher.Constraint("Horizontal", 9, 2, 10, 2),
    Sketcher.Constraint("Horizontal", 7, 2, 16, 2),
    Sketcher.Constraint("Vertical", 2, 3, 3, 3),
    Sketcher.Constraint("Vertical", 4, 3, 5, 3),
    Sketcher.Constraint("Vertical", 13, 2, 14, 2),
    Sketcher.Constraint("Vertical", 12, 2, 15, 2),
    Sketcher.Constraint("Equal", 9, 11),
    Sketcher.Constraint("Equal", 17, 19),
    Sketcher.Constraint("Equal", 8, 10),
    Sketcher.Constraint("Equal", 12, 14),
    Sketcher.Constraint("Equal", 16, 18),
    Sketcher.Constraint("Diameter", 0, Q("0.089 in")),
    Sketcher.Constraint("DistanceY", 6, 1, 6, 2, Q("0.5 in")),
    Sketcher.Constraint("DistanceY", -1, 1, 0, 3, Q("5 in")),
    Sketcher.Constraint("DistanceX", 8, 2, 10, 2, Q("0.6 in")),
    Sketcher.Constraint("DistanceX", 7, 1, 7, 2, Q("0.234 in")),
    Sketcher.Constraint("DistanceY", -1, 1, 6, 2, Q("4.75 in")),
    Sketcher.Constraint("DistanceX", 0, 3, 1, 3, Q("0.75 in")),
    Sketcher.Constraint("DistanceX", 18, 2, 5, 3, Q("0.117 in")),
    Sketcher.Constraint("DistanceY", -1, 1, 5, 3, Q("5.1993002 in")),
    Sketcher.Constraint("DistanceX", 2, 3, 0, 3, 113.479899),
    Sketcher.Constraint("DistanceY", -1, 1, 3, 3, 131.742631),
    Sketcher.Constraint("DistanceX", 6, 2, -1, 1, 63.03106),
    Sketcher.Constraint("DistanceY", -1, 1, 18, 2, 120.557869),
    Sketcher.Constraint("DistanceY", 2, 3, 4, 3, 0.48574),
    Sketcher.Constraint("DistanceY", 4, 3, 5, 3, 35.57993),
    Sketcher.Constraint("DistanceX", -1, 1, 0, 3, 53.410347),
    Sketcher.Constraint("DistanceX", -1, 1, 4, 3, 38.527322),
])
pocket3 = body.newObject("PartDesign::Pocket", "Pocket002")
pocket3.Profile = sketch4
pocket3.Type = "ThroughAll"
pocket3.Reversed = True

# Sketch on XZ plane
sketch5 = body.newObject("Sketcher::SketchObject", "Sketch004")
sketch5.AttachmentSupport = (doc.getObject("XZ_Plane"), [""])
sketch5.MapMode = "FlatFace"
sketch5.AttachmentOffset = App.Placement(Vector(0, 0, -0.234 * 25.4), App.Rotation())
sketch5.addGeometry([
    Part.Circle(Vector(23.4, -50.2, 0), Vector(0, 0, 1), 1.1),  # 0
    Part.Circle(Vector(23.4, -119, 0), Vector(0, 0, 1), 1.1),  # 1
    Part.Circle(Vector(23.4, 25.1, 0), Vector(0, 0, 1), 1.1),  # 2
    Part.Circle(Vector(-23.1, -119, 0), Vector(0, 0, 1), 1.1),  # 3
    Part.Circle(Vector(-23.1, -50.2, 0), Vector(0, 0, 1), 1.1),  # 4
    Part.Circle(Vector(-23.1, 25.1, 0), Vector(0, 0, 1), 1.1),  # 5
], False)
sketch5.addConstraint([
    Sketcher.Constraint("Equal", 0, 1),
    Sketcher.Constraint("Equal", 1, 2),
    Sketcher.Constraint("Equal", 2, 3),
    Sketcher.Constraint("Equal", 3, 4),
    Sketcher.Constraint("Equal", 4, 5),
    Sketcher.Constraint("Horizontal", 1, 3, 3, 3),
    Sketcher.Constraint("Horizontal", 0, 3, 4, 3),
    Sketcher.Constraint("Horizontal", 2, 3, 5, 3),
    Sketcher.Constraint("Vertical", 0, 3, 1, 3),
    Sketcher.Constraint("Vertical", 1, 3, 2, 3),
    Sketcher.Constraint("Vertical", 3, 3, 4, 3),
    Sketcher.Constraint("Vertical", 4, 3, 5, 3),
    Sketcher.Constraint("Diameter", 0, Q("0.089 in")),
    Sketcher.Constraint("DistanceX", -1, 1, 0, 3, Q("0.923 in")),
    Sketcher.Constraint("DistanceX", 3, 3, -1, 1, Q("0.911 in")),
    Sketcher.Constraint("DistanceY", 1, 3, 0, 3, Q("2.712 in")),
    Sketcher.Constraint("DistanceY", 0, 3, 2, 3, 75.24115),
    Sketcher.Constraint("DistanceY", 0, 3, -1, 1, 50.154484),
])
pocket4 = body.newObject("PartDesign::Pocket", "Pocket003")
pocket4.Profile = sketch5
pocket4.Type = "ThroughAll"
pocket4.Reversed = True

# Sketch on XZ plane
sketch6 = body.newObject("Sketcher::SketchObject", "Sketch005")
sketch6.AttachmentSupport = (doc.getObject("XZ_Plane"), [""])
sketch6.MapMode = "FlatFace"
sketch6.AttachmentOffset = App.Placement(Vector(0, 0, -0.234 * 25.4), App.Rotation())
add_polygon(sketch6, [(20, -38), (20, 13), (26, 13), (26, -38)])  # lines 0-3
add_polygon(sketch6, [(-26, -38), (-26, 13), (-20, 13), (-20, -38)])  # lines 4-7
sketch6.addConstraint([
    Sketcher.Constraint("Vertical", 0),
    Sketcher.Constraint("Horizontal", 1),
    Sketcher.Constraint("Vertical", 2),
    Sketcher.Constraint("Horizontal", 3),
    Sketcher.Constraint("Vertical", 4),
    Sketcher.Constraint("Horizontal", 5),
    Sketcher.Constraint("Vertical", 6),
    Sketcher.Constraint("Horizontal", 7),
    Sketcher.Constraint("Horizontal", 1, 2, 4, 2),
    Sketcher.Constraint("Horizontal", 3, 2, 6, 2),
    Sketcher.Constraint("Equal", 3, 5),
    Sketcher.Constraint("DistanceY", 0, 1, 0, 2, Q("2 in")),
    Sketcher.Constraint("DistanceX", 5, 2, 0, 2, Q("1.6 in")),
    Sketcher.Constraint("DistanceX", 1, 1, 1, 2, Q("0.234 in")),
    Sketcher.Constraint("DistanceX", -1, 1, 1, 2, Q("1.04 in")),
    Sketcher.Constraint("DistanceY", -1, 1, 0, 2, 12.734925),
])
pocket5 = body.newObject("PartDesign::Pocket", "Pocket004")
pocket5.Profile = sketch6
pocket5.Type = "ThroughAll"
pocket5.Reversed = True

# Sketch on XZ plane
sketch7 = body.newObject("Sketcher::SketchObject", "Sketch006")
sketch7.AttachmentSupport = (doc.getObject("XZ_Plane"), [""])
sketch7.MapMode = "FlatFace"
sketch7.AttachmentOffset = App.Placement(Vector(0, 0, -0.234 * 25.4), App.Rotation())
sketch7.addGeometry([
    Part.Circle(Vector(-75.7, -26.7, 0), Vector(0, 0, 1), 1.1),
    Part.Circle(Vector(-75.7, -57.2, 0), Vector(0, 0, 1), 1.1),
    Part.Circle(Vector(-54.1, -57.2, 0), Vector(0, 0, 1), 1.1),
    Part.Circle(Vector(-54.1, -26.7, 0), Vector(0, 0, 1), 1.1),
], False)
sketch7.addConstraint([
    Sketcher.Constraint("Equal", 0, 1),
    Sketcher.Constraint("Equal", 1, 2),
    Sketcher.Constraint("Equal", 2, 3),
    Sketcher.Constraint("Horizontal", 1, 3, 2, 3),
    Sketcher.Constraint("Horizontal", 0, 3, 3, 3),
    Sketcher.Constraint("Vertical", 0, 3, 1, 3),
    Sketcher.Constraint("Vertical", 2, 3, 3, 3),
    Sketcher.Constraint("Diameter", 0, Q("0.089 in")),
    Sketcher.Constraint("DistanceY", 1, 3, 0, 3, Q("1.2 in")),
    Sketcher.Constraint("DistanceX", 1, 3, 2, 3, Q("0.85 in")),
    Sketcher.Constraint("DistanceX", 0, 3, -1, 1, Q("2.979 in")),
    Sketcher.Constraint("DistanceY", 0, 3, -1, 1, Q("1.053 in")),
])
pocket6 = body.newObject("PartDesign::Pocket", "Pocket005")
pocket6.Profile = sketch7
pocket6.Type = "ThroughAll"
pocket6.Reversed = True

doc.recompute()
